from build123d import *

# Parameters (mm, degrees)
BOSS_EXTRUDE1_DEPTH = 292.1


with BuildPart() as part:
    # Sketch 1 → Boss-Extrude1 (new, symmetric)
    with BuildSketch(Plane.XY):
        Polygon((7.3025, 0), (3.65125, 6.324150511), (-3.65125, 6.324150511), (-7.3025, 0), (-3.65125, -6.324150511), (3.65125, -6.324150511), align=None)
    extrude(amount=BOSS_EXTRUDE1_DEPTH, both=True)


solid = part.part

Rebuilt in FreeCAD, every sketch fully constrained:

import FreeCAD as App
import Part
import Sketcher

V = App.Vector
Q = App.Units.Quantity


def add_polygon(sketch, points):
    """Adds a closed chain of lines whose ends are joined by coincident constraints."""
    first, n = sketch.GeometryCount, len(points)
    for a, b in zip(points, points[1:] + points[:1]):
        sketch.addGeometry(Part.LineSegment(App.Vector(*a, 0), App.Vector(*b, 0)), False)
    for i in range(n):
        sketch.addConstraint(Sketcher.Constraint("Coincident", first + i, 2, first + (i + 1) % n, 1))

doc = App.newDocument("Part")
params = doc.addObject("Spreadsheet::Sheet", "Params")
for row, (alias, value) in enumerate([
    ("pad1_length", "23 in"),
], start=1):
    params.set(f"A{row}", alias)
    params.set(f"B{row}", "=" + value)
    params.setAlias(f"B{row}", alias)

body = doc.addObject("PartDesign::Body", "Body")

# Sketch on XY plane
sketch1 = body.newObject("Sketcher::SketchObject", "Sketch")
sketch1.AttachmentSupport = (doc.getObject("XY_Plane"), [""])
sketch1.MapMode = "FlatFace"
add_polygon(sketch1, [(7, 0), (4, 6), (-4, 6), (-7, 0), (-4, -6), (4, -6)])  # lines 0-5
sketch1.addConstraint([
    Sketcher.Constraint("Horizontal", 1),
    Sketcher.Constraint("Horizontal", 4),
    Sketcher.Constraint("Symmetric", 0, 2, 3, 2, -1, 1),
    Sketcher.Constraint("Symmetric", 2, 2, 5, 2, -1, 1),
    Sketcher.Constraint("PointOnObject", 2, 2, -1),
    Sketcher.Constraint("Parallel", 2, 5),
    Sketcher.Constraint("Vertical", 1, 2, 3, 2),
    Sketcher.Constraint("Angle", 0, Q("120 deg")),
    Sketcher.Constraint("DistanceX", 1, 2, 1, 1, Q("0.2875 in")),
    Sketcher.Constraint("DistanceX", 2, 2, 5, 2, Q("0.575 in")),
])
pad1 = body.newObject("PartDesign::Pad", "Pad")
pad1.Profile = sketch1
pad1.setExpression("Length", "Params.pad1_length")
pad1.Midplane = True

doc.recompute()
